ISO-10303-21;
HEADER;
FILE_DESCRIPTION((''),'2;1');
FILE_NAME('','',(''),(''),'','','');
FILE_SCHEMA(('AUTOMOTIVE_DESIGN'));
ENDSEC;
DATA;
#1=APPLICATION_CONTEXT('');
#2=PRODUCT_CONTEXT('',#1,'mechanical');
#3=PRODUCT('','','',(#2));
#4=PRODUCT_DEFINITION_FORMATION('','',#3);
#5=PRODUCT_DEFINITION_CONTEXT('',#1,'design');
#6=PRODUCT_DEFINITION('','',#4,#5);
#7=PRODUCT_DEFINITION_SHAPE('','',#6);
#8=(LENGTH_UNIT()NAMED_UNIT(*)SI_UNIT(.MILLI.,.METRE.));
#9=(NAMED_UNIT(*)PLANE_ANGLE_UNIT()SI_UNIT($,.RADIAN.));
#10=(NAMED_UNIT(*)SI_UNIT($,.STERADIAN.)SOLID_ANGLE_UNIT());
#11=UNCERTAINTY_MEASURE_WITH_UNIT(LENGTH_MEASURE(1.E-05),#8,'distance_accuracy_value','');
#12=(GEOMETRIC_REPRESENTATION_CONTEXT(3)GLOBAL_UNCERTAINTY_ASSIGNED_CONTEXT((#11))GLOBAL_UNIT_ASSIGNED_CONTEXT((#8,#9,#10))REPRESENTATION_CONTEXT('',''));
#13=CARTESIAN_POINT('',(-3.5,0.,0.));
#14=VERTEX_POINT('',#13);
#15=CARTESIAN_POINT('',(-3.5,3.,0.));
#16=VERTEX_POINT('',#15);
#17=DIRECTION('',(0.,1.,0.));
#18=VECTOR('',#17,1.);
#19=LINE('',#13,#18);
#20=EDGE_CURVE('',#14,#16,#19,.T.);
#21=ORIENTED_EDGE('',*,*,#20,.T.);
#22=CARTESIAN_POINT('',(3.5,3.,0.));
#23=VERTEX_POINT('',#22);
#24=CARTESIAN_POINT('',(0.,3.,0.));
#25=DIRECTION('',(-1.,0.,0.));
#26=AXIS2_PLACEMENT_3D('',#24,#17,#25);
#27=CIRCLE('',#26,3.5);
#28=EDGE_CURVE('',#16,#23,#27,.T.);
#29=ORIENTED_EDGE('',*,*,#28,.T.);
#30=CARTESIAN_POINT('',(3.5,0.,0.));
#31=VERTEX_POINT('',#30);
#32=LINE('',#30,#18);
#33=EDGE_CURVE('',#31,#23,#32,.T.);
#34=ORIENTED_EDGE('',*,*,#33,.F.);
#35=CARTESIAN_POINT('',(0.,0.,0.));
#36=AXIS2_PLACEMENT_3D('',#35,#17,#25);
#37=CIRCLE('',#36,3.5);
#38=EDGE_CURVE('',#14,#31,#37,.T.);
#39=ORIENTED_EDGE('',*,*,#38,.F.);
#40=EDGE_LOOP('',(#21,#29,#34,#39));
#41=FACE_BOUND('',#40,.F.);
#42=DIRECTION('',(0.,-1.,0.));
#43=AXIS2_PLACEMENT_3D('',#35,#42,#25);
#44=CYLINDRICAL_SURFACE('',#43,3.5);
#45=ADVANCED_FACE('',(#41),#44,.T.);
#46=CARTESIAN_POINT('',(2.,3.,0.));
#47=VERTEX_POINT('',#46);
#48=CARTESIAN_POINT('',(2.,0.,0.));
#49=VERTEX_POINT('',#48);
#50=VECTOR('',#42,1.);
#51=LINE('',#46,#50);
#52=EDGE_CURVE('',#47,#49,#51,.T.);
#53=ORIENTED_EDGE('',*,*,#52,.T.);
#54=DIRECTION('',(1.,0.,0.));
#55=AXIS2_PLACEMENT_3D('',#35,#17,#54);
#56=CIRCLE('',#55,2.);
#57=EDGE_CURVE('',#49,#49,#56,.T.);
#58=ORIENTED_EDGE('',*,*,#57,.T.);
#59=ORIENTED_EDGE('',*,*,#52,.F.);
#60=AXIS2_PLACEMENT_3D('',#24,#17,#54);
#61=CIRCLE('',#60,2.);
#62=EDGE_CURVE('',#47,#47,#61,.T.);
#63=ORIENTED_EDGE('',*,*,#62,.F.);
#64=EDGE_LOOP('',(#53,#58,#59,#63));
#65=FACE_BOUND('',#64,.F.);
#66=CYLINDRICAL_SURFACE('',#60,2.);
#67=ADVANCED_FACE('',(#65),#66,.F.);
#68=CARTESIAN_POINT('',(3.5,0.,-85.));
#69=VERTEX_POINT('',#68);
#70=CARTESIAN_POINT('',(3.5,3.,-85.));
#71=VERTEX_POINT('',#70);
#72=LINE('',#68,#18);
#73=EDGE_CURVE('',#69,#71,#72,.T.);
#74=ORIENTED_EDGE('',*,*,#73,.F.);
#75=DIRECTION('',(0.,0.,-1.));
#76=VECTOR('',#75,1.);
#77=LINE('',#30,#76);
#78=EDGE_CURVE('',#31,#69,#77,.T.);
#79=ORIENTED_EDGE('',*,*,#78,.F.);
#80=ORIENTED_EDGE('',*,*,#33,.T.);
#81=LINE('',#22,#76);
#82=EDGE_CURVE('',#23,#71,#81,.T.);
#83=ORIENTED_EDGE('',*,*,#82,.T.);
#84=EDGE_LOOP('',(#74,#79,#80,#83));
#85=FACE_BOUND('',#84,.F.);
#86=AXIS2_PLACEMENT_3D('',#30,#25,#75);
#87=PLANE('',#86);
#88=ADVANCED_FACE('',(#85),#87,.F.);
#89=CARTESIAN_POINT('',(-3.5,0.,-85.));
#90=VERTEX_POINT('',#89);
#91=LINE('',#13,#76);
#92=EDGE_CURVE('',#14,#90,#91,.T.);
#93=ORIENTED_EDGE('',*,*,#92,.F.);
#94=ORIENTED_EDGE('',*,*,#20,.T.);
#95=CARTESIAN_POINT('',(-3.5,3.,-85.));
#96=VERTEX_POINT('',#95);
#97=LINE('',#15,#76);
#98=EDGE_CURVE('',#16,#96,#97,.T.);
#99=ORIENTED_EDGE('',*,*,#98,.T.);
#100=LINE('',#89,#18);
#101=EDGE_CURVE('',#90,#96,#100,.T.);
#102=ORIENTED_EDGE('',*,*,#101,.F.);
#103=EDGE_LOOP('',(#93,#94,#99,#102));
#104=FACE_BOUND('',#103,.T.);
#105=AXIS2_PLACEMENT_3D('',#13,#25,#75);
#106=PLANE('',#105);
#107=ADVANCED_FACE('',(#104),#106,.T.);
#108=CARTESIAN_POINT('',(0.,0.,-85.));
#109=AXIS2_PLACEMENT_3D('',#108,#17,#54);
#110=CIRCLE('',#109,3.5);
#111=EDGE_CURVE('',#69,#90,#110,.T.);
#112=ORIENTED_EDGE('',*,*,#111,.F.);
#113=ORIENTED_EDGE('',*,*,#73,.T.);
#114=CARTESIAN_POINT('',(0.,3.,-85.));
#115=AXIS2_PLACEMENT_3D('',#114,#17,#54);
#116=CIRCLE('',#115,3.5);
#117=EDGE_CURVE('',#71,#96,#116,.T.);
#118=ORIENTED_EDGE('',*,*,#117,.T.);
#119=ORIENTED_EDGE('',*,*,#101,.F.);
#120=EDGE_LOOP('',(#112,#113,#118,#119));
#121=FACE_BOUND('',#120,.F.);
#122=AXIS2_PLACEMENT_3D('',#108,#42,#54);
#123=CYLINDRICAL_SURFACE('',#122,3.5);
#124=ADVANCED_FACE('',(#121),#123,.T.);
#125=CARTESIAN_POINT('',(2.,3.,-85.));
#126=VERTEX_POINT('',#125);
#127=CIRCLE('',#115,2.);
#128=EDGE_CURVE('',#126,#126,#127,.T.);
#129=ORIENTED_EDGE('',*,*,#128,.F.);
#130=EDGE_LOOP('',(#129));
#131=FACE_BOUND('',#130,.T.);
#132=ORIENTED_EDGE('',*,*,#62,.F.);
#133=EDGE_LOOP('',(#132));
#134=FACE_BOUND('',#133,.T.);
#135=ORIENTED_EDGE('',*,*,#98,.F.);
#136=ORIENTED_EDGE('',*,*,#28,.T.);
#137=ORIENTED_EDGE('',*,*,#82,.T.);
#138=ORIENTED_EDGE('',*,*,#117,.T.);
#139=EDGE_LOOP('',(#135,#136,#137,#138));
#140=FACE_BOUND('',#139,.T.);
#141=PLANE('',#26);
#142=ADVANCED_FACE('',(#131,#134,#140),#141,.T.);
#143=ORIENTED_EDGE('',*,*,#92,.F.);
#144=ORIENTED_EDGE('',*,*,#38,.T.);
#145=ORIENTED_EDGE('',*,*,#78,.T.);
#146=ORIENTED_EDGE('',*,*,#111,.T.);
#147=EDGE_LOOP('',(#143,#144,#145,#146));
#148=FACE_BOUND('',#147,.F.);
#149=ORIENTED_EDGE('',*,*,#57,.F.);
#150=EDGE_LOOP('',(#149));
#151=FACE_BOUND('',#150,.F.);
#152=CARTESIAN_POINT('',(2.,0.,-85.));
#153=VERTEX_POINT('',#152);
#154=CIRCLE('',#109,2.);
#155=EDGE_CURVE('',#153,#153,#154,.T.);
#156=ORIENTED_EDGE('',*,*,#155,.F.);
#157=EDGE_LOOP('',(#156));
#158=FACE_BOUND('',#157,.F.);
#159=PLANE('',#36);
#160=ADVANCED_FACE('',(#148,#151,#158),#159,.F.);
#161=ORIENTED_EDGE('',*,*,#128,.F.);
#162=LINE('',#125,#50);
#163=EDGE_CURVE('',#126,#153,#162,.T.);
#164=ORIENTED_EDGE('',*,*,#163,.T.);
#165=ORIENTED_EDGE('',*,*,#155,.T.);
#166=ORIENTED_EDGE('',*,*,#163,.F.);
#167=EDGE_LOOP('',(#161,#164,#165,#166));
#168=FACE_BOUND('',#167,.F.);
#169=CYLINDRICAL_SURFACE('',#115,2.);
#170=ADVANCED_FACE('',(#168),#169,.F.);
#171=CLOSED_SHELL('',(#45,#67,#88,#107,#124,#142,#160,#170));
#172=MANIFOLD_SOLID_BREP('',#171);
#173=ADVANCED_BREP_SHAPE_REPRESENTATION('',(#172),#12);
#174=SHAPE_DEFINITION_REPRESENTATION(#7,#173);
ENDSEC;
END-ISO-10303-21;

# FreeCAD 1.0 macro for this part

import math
import FreeCAD as App
import Part
import Sketcher

V = App.Vector

doc = App.newDocument("Part")
params = doc.addObject("Spreadsheet::Sheet", "Params")
for row, (alias, value) in enumerate([
    ("sketch1_radius", "3.5 mm"),
    ("sketch1_height", "85 mm"),
    ("pad1_length", "3 mm"),
    ("sketch2_diameter", "4 mm"),
    ("pocket1_length", "3 mm"),
], start=1):
    params.set(f"A{row}", alias)
    params.set(f"B{row}", "=" + value)
    params.setAlias(f"B{row}", alias)

body = doc.addObject("PartDesign::Body", "Body")

# Sketch on XZ plane
sketch1 = body.newObject("Sketcher::SketchObject", "Sketch")
sketch1.AttachmentSupport = (doc.getObject("XZ_Plane"), [""])
sketch1.MapMode = "FlatFace"
sketch1.addGeometry(Part.LineSegment(V(-3.5, -85, 0), V(-3.5, 0, 0)), False)
sketch1.addGeometry(Part.ArcOfCircle(Part.Circle(V(0, 0, 0), V(0, 0, 1), 3.5), math.radians(0), math.radians(180)), False)
sketch1.addGeometry(Part.LineSegment(V(3.5, 0, 0), V(3.5, -85, 0)), False)
sketch1.addGeometry(Part.ArcOfCircle(Part.Circle(V(0, -85, 0), V(0, 0, 1), 3.5), math.radians(180), math.radians(360)), False)
sketch1.addConstraint(Sketcher.Constraint("Tangent", 0, 2, 1, 2))
sketch1.addConstraint(Sketcher.Constraint("Tangent", 1, 1, 2, 1))
sketch1.addConstraint(Sketcher.Constraint("Tangent", 2, 2, 3, 2))
sketch1.addConstraint(Sketcher.Constraint("Tangent", 3, 1, 0, 1))
sketch1.addConstraint(Sketcher.Constraint("Vertical", 0))
sketch1.addConstraint(Sketcher.Constraint("Vertical", 2))
sketch1.addConstraint(Sketcher.Constraint("Coincident", 1, 3, -1, 1))
sketch1.addConstraint(Sketcher.Constraint("Radius", 1, 3.5))
sketch1.addConstraint(Sketcher.Constraint("DistanceY", 0, 1, 0, 2, 85.0))
sketch1.setExpression("Constraints[7]", "Params.sketch1_radius")
sketch1.setExpression("Constraints[8]", "Params.sketch1_height")
pad1 = body.newObject("PartDesign::Pad", "Pad")
pad1.Profile = sketch1
pad1.setExpression("Length", "Params.pad1_length")
pad1.Reversed = True

# Sketch on XZ plane
sketch2 = body.newObject("Sketcher::SketchObject", "Sketch001")
sketch2.AttachmentSupport = (doc.getObject("XZ_Plane"), [""])
sketch2.MapMode = "FlatFace"
sketch2.AttachmentOffset = App.Placement(V(0, 0, -3), App.Rotation())
sketch2.addGeometry(Part.Circle(V(0, 0, 0), V(0, 0, 1), 2), False)
sketch2.addGeometry(Part.Circle(V(0, -85, 0), V(0, 0, 1), 2), False)
sketch2.addConstraint(Sketcher.Constraint("Coincident", 0, 3, -1, 1))
sketch2.addConstraint(Sketcher.Constraint("Equal", 0, 1))
sketch2.addConstraint(Sketcher.Constraint("PointOnObject", 1, 3, -2))
sketch2.addConstraint(Sketcher.Constraint("Diameter", 0, 4.0))
sketch2.addConstraint(Sketcher.Constraint("DistanceY", 1, 3, -1, 1, 85.0))
sketch2.setExpression("Constraints[3]", "Params.sketch2_diameter")
pocket1 = body.newObject("PartDesign::Pocket", "Pocket")
pocket1.Profile = sketch2
pocket1.setExpression("Length", "Params.pocket1_length")
pocket1.Reversed = True

doc.recompute()
